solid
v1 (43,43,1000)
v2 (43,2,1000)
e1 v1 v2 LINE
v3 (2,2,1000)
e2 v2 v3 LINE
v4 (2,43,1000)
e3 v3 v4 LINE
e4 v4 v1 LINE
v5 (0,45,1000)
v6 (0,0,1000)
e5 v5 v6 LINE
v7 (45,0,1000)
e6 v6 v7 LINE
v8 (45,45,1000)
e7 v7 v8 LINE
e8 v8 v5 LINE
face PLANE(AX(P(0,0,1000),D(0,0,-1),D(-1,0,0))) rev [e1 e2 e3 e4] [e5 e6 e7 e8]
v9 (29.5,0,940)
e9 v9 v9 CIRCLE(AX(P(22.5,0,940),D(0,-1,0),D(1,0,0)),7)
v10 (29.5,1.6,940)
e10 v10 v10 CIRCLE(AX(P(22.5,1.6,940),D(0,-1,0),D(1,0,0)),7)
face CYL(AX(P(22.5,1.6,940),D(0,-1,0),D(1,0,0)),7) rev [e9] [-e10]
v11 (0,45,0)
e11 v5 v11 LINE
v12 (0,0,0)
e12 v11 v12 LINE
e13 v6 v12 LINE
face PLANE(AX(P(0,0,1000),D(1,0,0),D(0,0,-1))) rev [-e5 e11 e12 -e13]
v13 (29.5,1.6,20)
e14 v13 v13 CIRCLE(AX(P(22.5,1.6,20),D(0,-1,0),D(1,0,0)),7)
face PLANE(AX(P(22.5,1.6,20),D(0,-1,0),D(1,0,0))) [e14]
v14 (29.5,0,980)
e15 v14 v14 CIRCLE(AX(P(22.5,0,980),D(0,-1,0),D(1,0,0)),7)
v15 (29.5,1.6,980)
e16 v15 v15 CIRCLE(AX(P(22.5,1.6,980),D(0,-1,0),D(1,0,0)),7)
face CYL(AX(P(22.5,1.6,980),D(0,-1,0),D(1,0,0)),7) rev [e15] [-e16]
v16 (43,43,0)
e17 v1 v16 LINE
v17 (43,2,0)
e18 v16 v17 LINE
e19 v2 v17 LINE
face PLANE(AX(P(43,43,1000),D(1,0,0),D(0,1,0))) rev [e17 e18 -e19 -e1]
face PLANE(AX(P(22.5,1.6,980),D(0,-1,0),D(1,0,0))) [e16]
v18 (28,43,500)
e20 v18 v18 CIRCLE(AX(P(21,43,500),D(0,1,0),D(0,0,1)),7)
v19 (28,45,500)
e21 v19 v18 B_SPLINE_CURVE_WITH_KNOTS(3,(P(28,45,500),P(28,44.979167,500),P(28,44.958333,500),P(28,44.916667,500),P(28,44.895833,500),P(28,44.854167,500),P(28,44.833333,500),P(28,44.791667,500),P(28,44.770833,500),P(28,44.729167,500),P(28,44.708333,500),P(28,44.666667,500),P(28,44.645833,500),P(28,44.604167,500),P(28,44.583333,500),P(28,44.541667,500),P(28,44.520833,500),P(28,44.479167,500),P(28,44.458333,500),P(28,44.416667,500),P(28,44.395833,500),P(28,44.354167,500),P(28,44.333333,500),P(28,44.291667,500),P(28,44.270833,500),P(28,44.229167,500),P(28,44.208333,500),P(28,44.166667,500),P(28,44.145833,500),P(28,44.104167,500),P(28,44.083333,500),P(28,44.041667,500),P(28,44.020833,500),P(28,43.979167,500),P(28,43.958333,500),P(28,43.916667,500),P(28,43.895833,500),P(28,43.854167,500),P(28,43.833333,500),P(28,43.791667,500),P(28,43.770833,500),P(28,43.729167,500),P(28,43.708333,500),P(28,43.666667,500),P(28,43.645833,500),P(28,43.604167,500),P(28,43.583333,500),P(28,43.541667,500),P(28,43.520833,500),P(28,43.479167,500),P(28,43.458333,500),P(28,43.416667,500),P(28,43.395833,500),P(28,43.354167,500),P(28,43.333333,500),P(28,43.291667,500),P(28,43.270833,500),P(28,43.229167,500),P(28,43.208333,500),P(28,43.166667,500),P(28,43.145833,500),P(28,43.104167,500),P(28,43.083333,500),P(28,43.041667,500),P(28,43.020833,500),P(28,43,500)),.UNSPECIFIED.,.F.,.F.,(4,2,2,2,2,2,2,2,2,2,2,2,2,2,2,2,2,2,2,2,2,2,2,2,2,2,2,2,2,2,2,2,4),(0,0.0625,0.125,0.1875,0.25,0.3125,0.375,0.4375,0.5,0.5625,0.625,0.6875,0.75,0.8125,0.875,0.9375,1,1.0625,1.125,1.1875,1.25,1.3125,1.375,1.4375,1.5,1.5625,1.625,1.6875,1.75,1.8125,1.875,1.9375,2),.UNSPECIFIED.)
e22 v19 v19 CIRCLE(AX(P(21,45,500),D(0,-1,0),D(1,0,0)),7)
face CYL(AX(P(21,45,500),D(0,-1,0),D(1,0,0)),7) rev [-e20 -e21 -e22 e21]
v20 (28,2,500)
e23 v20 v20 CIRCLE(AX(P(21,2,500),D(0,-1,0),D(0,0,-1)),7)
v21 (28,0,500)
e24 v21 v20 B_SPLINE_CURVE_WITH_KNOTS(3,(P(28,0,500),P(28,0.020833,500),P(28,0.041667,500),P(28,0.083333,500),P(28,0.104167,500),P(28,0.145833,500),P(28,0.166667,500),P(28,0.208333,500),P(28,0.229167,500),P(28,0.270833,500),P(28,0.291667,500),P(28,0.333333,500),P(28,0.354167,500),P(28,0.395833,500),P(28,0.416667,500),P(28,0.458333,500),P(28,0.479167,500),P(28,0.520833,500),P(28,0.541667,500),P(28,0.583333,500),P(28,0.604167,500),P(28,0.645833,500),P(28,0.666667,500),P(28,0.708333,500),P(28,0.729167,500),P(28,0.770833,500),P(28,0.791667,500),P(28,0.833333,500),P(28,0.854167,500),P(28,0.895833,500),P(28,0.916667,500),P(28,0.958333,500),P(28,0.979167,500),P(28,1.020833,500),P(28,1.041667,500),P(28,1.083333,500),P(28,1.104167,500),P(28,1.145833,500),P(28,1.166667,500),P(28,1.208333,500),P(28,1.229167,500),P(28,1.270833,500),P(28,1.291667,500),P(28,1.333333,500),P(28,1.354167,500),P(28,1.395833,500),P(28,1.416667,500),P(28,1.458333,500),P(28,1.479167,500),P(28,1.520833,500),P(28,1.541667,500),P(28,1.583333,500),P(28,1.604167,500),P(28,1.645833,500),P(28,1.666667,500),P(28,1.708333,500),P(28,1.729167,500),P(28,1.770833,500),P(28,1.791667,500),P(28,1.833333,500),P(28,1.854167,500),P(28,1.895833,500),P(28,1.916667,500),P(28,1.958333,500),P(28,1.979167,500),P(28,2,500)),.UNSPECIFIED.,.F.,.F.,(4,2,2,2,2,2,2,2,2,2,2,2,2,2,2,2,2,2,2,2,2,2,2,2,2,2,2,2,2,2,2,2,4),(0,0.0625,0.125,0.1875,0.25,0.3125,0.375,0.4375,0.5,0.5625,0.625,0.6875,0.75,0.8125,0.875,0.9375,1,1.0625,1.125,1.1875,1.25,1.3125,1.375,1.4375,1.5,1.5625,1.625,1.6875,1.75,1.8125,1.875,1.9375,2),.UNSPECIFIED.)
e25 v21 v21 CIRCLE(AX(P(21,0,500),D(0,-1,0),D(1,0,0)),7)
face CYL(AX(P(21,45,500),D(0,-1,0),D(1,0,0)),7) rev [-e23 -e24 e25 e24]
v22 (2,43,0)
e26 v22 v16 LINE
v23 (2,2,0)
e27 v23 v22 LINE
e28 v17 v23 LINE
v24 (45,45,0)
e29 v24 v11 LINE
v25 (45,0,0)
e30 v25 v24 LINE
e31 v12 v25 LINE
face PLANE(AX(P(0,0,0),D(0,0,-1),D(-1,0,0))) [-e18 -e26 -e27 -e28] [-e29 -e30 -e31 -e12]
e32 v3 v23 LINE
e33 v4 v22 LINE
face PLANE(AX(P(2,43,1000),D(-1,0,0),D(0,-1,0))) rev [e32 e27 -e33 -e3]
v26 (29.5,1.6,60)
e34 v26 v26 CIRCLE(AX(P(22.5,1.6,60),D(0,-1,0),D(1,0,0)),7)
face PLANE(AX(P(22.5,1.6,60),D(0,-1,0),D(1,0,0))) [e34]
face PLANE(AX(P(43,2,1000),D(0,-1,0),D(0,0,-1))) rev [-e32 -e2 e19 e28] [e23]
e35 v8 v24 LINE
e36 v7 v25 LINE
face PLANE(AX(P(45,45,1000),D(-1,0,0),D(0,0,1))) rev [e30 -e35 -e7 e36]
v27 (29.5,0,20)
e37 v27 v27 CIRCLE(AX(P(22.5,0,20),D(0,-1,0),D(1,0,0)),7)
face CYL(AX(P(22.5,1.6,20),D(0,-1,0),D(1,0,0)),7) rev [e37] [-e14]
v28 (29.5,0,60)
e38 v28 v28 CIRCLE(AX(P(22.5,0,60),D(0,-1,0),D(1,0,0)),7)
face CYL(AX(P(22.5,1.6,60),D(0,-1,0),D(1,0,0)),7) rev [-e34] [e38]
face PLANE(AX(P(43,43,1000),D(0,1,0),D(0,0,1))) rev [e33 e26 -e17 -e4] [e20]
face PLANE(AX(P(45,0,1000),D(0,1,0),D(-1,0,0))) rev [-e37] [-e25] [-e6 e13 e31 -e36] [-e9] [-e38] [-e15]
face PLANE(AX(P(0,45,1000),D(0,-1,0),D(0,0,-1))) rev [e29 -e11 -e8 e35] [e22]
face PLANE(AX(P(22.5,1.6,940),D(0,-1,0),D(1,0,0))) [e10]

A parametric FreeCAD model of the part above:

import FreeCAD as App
import Part
import Sketcher
from FreeCAD import Vector

doc = App.newDocument("Part")
body = doc.addObject("PartDesign::Body", "Body")

# Sketch on XY plane
sketch1 = doc.addObject("Sketcher::SketchObject", "Sketch")
body.addObject(sketch1)
sketch1.AttachmentSupport = (doc.XY_Plane, [""])
sketch1.MapMode = "FlatFace"
sketch1.addGeometry(Part.LineSegment(Vector(0, 45, 0), Vector(0, 0, 0)), False)
sketch1.addGeometry(Part.LineSegment(Vector(0, 0, 0), Vector(45, 0, 0)), False)
sketch1.addGeometry(Part.LineSegment(Vector(45, 0, 0), Vector(45, 45, 0)), False)
sketch1.addGeometry(Part.LineSegment(Vector(45, 45, 0), Vector(0, 45, 0)), False)
sketch1.addConstraint(Sketcher.Constraint("Coincident", 0, 2, 1, 1))
sketch1.addConstraint(Sketcher.Constraint("Coincident", 1, 2, 2, 1))
sketch1.addConstraint(Sketcher.Constraint("Coincident", 2, 2, 3, 1))
sketch1.addConstraint(Sketcher.Constraint("Coincident", 3, 2, 0, 1))
sketch1.addConstraint(Sketcher.Constraint("Vertical", 0))
sketch1.addConstraint(Sketcher.Constraint("Horizontal", 1))
sketch1.addConstraint(Sketcher.Constraint("Vertical", 2))
sketch1.addConstraint(Sketcher.Constraint("Horizontal", 3))
sketch1.addConstraint(Sketcher.Constraint("Coincident", 0, 2, -1, 1))
sketch1.addConstraint(Sketcher.Constraint("Equal", 3, 0))
sketch1.addConstraint(Sketcher.Constraint("DistanceX", 1, 1, 1, 2, 45.0))
pad1 = doc.addObject("PartDesign::Pad", "Pad")
body.addObject(pad1)
pad1.Profile = sketch1
pad1.Length = 1000

# Sketch on XY plane
sketch2 = doc.addObject("Sketcher::SketchObject", "Sketch001")
body.addObject(sketch2)
sketch2.AttachmentSupport = (doc.XY_Plane, [""])
sketch2.MapMode = "FlatFace"
sketch2.addGeometry(Part.LineSegment(Vector(43, 43, 0), Vector(43, 2, 0)), False)
sketch2.addGeometry(Part.LineSegment(Vector(43, 2, 0), Vector(2, 2, 0)), False)
sketch2.addGeometry(Part.LineSegment(Vector(2, 2, 0), Vector(2, 43, 0)), False)
sketch2.addGeometry(Part.LineSegment(Vector(2, 43, 0), Vector(43, 43, 0)), False)
sketch2.addConstraint(Sketcher.Constraint("Coincident", 0, 2, 1, 1))
sketch2.addConstraint(Sketcher.Constraint("Coincident", 1, 2, 2, 1))
sketch2.addConstraint(Sketcher.Constraint("Coincident", 2, 2, 3, 1))
sketch2.addConstraint(Sketcher.Constraint("Coincident", 3, 2, 0, 1))
sketch2.addConstraint(Sketcher.Constraint("Vertical", 0))
sketch2.addConstraint(Sketcher.Constraint("Horizontal", 1))
sketch2.addConstraint(Sketcher.Constraint("Vertical", 2))
sketch2.addConstraint(Sketcher.Constraint("Horizontal", 3))
sketch2.addConstraint(Sketcher.Constraint("Equal", 3, 0))
sketch2.addConstraint(Sketcher.Constraint("DistanceX", 1, 2, 1, 1, 41.0))
sketch2.addConstraint(Sketcher.Constraint("DistanceX", -1, 1, 0, 2, 43.0))
sketch2.addConstraint(Sketcher.Constraint("DistanceY", -1, 1, 0, 2, 2.0))
pocket1 = doc.addObject("PartDesign::Pocket", "Pocket")
body.addObject(pocket1)
pocket1.Profile = sketch2
pocket1.Type = "ThroughAll"
pocket1.Reversed = True

# Sketch on XZ plane
sketch3 = doc.addObject("Sketcher::SketchObject", "Sketch002")
body.addObject(sketch3)
sketch3.AttachmentSupport = (doc.XZ_Plane, [""])
sketch3.MapMode = "FlatFace"
sketch3.addGeometry(Part.Circle(Vector(22, 980, 0), Vector(0, 0, 1), 7), False)
sketch3.addGeometry(Part.Circle(Vector(22, 940, 0), Vector(0, 0, 1), 7), False)
sketch3.addGeometry(Part.Circle(Vector(22, 20, 0), Vector(0, 0, 1), 7), False)
sketch3.addGeometry(Part.Circle(Vector(22, 60, 0), Vector(0, 0, 1), 7), False)
sketch3.addConstraint(Sketcher.Constraint("Equal", 0, 1))
sketch3.addConstraint(Sketcher.Constraint("Equal", 1, 2))
sketch3.addConstraint(Sketcher.Constraint("Equal", 2, 3))
sketch3.addConstraint(Sketcher.Constraint("Vertical", 0, 3, 1, 3))
sketch3.addConstraint(Sketcher.Constraint("Vertical", 1, 3, 2, 3))
sketch3.addConstraint(Sketcher.Constraint("Vertical", 2, 3, 3, 3))
sketch3.addConstraint(Sketcher.Constraint("Diameter", 0, 14.0))
sketch3.addConstraint(Sketcher.Constraint("DistanceY", -1, 1, 0, 3, 980.0))
sketch3.addConstraint(Sketcher.Constraint("DistanceY", -1, 1, 1, 3, 940.0))
sketch3.addConstraint(Sketcher.Constraint("DistanceY", -1, 1, 2, 3, 20.0))
sketch3.addConstraint(Sketcher.Constraint("DistanceY", -1, 1, 3, 3, 60.0))
sketch3.addConstraint(Sketcher.Constraint("DistanceX", -1, 1, 0, 3, 22.5))
pocket2 = doc.addObject("PartDesign::Pocket", "Pocket001")
body.addObject(pocket2)
pocket2.Profile = sketch3
pocket2.Length = 1.6

# Sketch on XZ plane
sketch4 = doc.addObject("Sketcher::SketchObject", "Sketch003")
body.addObject(sketch4)
sketch4.AttachmentSupport = (doc.XZ_Plane, [""])
sketch4.MapMode = "FlatFace"
sketch4.addGeometry(Part.Circle(Vector(21, 500, 0), Vector(0, 0, 1), 7), False)
sketch4.addConstraint(Sketcher.Constraint("Diameter", 0, 14.0))
sketch4.addConstraint(Sketcher.Constraint("DistanceX", -1, 1, 0, 3, 21.0))
sketch4.addConstraint(Sketcher.Constraint("DistanceY", -1, 1, 0, 3, 500.0))
pocket3 = doc.addObject("PartDesign::Pocket", "Pocket002")
body.addObject(pocket3)
pocket3.Profile = sketch4
pocket3.Type = "ThroughAll"

doc.recompute()
